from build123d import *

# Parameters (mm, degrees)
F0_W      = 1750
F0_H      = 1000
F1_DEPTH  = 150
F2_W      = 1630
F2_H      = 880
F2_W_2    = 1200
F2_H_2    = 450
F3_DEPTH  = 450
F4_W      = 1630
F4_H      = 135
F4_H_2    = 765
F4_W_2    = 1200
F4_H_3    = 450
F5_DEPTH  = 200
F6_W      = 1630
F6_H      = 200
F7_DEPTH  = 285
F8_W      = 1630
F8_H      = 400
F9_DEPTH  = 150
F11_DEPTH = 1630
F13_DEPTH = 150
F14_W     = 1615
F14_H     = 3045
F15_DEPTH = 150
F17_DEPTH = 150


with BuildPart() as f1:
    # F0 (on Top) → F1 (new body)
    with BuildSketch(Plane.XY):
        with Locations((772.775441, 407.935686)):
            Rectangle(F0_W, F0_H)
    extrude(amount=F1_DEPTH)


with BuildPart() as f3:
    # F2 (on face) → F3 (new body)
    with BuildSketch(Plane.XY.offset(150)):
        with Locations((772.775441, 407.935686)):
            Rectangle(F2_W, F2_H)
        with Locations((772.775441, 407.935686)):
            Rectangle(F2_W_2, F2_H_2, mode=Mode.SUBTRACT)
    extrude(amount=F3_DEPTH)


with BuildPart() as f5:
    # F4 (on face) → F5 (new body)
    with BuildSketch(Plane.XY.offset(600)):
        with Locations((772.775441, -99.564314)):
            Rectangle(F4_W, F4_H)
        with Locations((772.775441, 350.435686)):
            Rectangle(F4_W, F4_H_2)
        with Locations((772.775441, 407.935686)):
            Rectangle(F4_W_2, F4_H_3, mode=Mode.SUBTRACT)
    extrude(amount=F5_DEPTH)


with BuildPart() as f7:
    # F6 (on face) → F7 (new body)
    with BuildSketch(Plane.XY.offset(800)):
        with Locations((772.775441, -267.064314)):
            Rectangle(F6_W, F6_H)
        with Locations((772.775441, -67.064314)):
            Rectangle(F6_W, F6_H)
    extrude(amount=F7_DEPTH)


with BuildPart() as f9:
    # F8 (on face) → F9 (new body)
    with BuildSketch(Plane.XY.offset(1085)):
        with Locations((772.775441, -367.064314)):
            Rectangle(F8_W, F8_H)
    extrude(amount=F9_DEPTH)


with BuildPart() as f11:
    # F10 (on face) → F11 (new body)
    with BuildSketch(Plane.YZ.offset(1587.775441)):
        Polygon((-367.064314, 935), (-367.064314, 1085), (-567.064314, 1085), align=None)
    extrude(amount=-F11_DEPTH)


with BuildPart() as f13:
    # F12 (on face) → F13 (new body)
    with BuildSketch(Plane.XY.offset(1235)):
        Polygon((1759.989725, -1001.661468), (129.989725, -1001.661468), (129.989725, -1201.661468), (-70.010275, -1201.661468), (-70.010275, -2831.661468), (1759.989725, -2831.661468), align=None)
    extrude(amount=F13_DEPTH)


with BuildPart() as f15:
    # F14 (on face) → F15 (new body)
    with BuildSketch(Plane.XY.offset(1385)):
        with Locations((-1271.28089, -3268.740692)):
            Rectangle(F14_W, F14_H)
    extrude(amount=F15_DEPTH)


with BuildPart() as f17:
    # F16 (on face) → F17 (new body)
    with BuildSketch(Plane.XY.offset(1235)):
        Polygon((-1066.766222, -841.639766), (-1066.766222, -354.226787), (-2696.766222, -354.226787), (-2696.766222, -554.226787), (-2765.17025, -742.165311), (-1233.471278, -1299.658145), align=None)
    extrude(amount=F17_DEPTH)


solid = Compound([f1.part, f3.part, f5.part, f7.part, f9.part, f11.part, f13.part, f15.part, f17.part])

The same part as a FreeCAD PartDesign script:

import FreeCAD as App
import Part
import Sketcher
Q = App.Units.Quantity

doc = App.newDocument("Part")
body = doc.addObject("PartDesign::Body", "Body")

# Sketch on XY plane
sketch1 = body.newObject("Sketcher::SketchObject", "Sketch")
sketch1.AttachmentSupport = (doc.getObject("XY_Plane"), [""])
sketch1.MapMode = "FlatFace"
sketch1.addGeometry(Part.LineSegment(App.Vector(-102, 908, 0), App.Vector(-102, -92, 0)), False)
sketch1.addGeometry(Part.LineSegment(App.Vector(-102, -92, 0), App.Vector(1648, -92, 0)), False)
sketch1.addGeometry(Part.LineSegment(App.Vector(1648, -92, 0), App.Vector(1648, 908, 0)), False)
sketch1.addGeometry(Part.LineSegment(App.Vector(1648, 908, 0), App.Vector(-102, 908, 0)), False)
sketch1.addConstraint(Sketcher.Constraint("Coincident", 0, 2, 1, 1))
sketch1.addConstraint(Sketcher.Constraint("Coincident", 1, 2, 2, 1))
sketch1.addConstraint(Sketcher.Constraint("Coincident", 2, 2, 3, 1))
sketch1.addConstraint(Sketcher.Constraint("Coincident", 3, 2, 0, 1))
sketch1.addConstraint(Sketcher.Constraint("Vertical", 0))
sketch1.addConstraint(Sketcher.Constraint("Horizontal", 1))
sketch1.addConstraint(Sketcher.Constraint("Vertical", 2))
sketch1.addConstraint(Sketcher.Constraint("Horizontal", 3))
sketch1.addConstraint(Sketcher.Constraint("DistanceX", 1, 1, 1, 2, 1750.0))
sketch1.addConstraint(Sketcher.Constraint("DistanceY", 0, 2, 0, 1, 1000.0))
sketch1.addConstraint(Sketcher.Constraint("DistanceX", 0, 2, -1, 1, 102.224559))
sketch1.addConstraint(Sketcher.Constraint("DistanceY", 0, 2, -1, 1, 92.064314))
pad1 = body.newObject("PartDesign::Pad", "Pad")
pad1.Profile = sketch1
pad1.Length = 150
body2 = doc.addObject("PartDesign::Body", "Body001")

# Sketch on XY plane
sketch2 = body2.newObject("Sketcher::SketchObject", "Sketch001")
sketch2.AttachmentSupport = (doc.getObject("XY_Plane001"), [""])
sketch2.MapMode = "FlatFace"
sketch2.AttachmentOffset = App.Placement(App.Vector(0, 0, 150), App.Rotation())
sketch2.addGeometry(Part.LineSegment(App.Vector(-42, 848, 0), App.Vector(-42, -32, 0)), False)
sketch2.addGeometry(Part.LineSegment(App.Vector(-42, -32, 0), App.Vector(1588, -32, 0)), False)
sketch2.addGeometry(Part.LineSegment(App.Vector(1588, -32, 0), App.Vector(1588, 848, 0)), False)
sketch2.addGeometry(Part.LineSegment(App.Vector(1588, 848, 0), App.Vector(-42, 848, 0)), False)
sketch2.addGeometry(Part.LineSegment(App.Vector(1373, 183, 0), App.Vector(173, 183, 0)), False)
sketch2.addGeometry(Part.LineSegment(App.Vector(173, 183, 0), App.Vector(173, 633, 0)), False)
sketch2.addGeometry(Part.LineSegment(App.Vector(173, 633, 0), App.Vector(1373, 633, 0)), False)
sketch2.addGeometry(Part.LineSegment(App.Vector(1373, 633, 0), App.Vector(1373, 183, 0)), False)
sketch2.addConstraint(Sketcher.Constraint("Coincident", 0, 2, 1, 1))
sketch2.addConstraint(Sketcher.Constraint("Coincident", 1, 2, 2, 1))
sketch2.addConstraint(Sketcher.Constraint("Coincident", 2, 2, 3, 1))
sketch2.addConstraint(Sketcher.Constraint("Coincident", 3, 2, 0, 1))
sketch2.addConstraint(Sketcher.Constraint("Coincident", 4, 2, 5, 1))
sketch2.addConstraint(Sketcher.Constraint("Coincident", 5, 2, 6, 1))
sketch2.addConstraint(Sketcher.Constraint("Coincident", 6, 2, 7, 1))
sketch2.addConstraint(Sketcher.Constraint("Coincident", 7, 2, 4, 1))
sketch2.addConstraint(Sketcher.Constraint("Vertical", 0))
sketch2.addConstraint(Sketcher.Constraint("Horizontal", 1))
sketch2.addConstraint(Sketcher.Constraint("Vertical", 2))
sketch2.addConstraint(Sketcher.Constraint("Horizontal", 3))
sketch2.addConstraint(Sketcher.Constraint("Horizontal", 4))
sketch2.addConstraint(Sketcher.Constraint("Vertical", 5))
sketch2.addConstraint(Sketcher.Constraint("Horizontal", 6))
sketch2.addConstraint(Sketcher.Constraint("Vertical", 7))
sketch2.addConstraint(Sketcher.Constraint("DistanceX", 1, 1, 1, 2, 1630.0))
sketch2.addConstraint(Sketcher.Constraint("DistanceX", 4, 2, 4, 1, 1200.0))
sketch2.addConstraint(Sketcher.Constraint("DistanceY", 0, 2, 0, 1, 880.0))
sketch2.addConstraint(Sketcher.Constraint("DistanceY", 5, 1, 5, 2, 450.0))
sketch2.addConstraint(Sketcher.Constraint("DistanceX", 0, 2, 4, 2, 215.0))
sketch2.addConstraint(Sketcher.Constraint("DistanceY", 0, 2, 4, 2, 215.0))
sketch2.addConstraint(Sketcher.Constraint("DistanceX", 0, 2, -1, 1, 42.224559))
sketch2.addConstraint(Sketcher.Constraint("DistanceY", 0, 2, -1, 1, 32.064314))
pad2 = body2.newObject("PartDesign::Pad", "Pad001")
pad2.Profile = sketch2
pad2.Length = 450
body3 = doc.addObject("PartDesign::Body", "Body002")

# Sketch on XY plane
sketch3 = body3.newObject("Sketcher::SketchObject", "Sketch002")
sketch3.AttachmentSupport = (doc.getObject("XY_Plane002"), [""])
sketch3.MapMode = "FlatFace"
sketch3.AttachmentOffset = App.Placement(App.Vector(0, 0, 600), App.Rotation())
sketch3.addGeometry(Part.LineSegment(App.Vector(-42, -167, 0), App.Vector(1588, -167, 0)), False)
sketch3.addGeometry(Part.LineSegment(App.Vector(1588, -167, 0), App.Vector(1588, 733, 0)), False)
sketch3.addGeometry(Part.LineSegment(App.Vector(1588, 733, 0), App.Vector(-42, 733, 0)), False)
sketch3.addGeometry(Part.LineSegment(App.Vector(-42, 733, 0), App.Vector(-42, -167, 0)), False)
sketch3.addGeometry(Part.LineSegment(App.Vector(1373, 183, 0), App.Vector(173, 183, 0)), False)
sketch3.addGeometry(Part.LineSegment(App.Vector(173, 183, 0), App.Vector(173, 633, 0)), False)
sketch3.addGeometry(Part.LineSegment(App.Vector(173, 633, 0), App.Vector(1373, 633, 0)), False)
sketch3.addGeometry(Part.LineSegment(App.Vector(1373, 633, 0), App.Vector(1373, 183, 0)), False)
sketch3.addConstraint(Sketcher.Constraint("Coincident", 0, 2, 1, 1))
sketch3.addConstraint(Sketcher.Constraint("Coincident", 1, 2, 2, 1))
sketch3.addConstraint(Sketcher.Constraint("Coincident", 2, 2, 3, 1))
sketch3.addConstraint(Sketcher.Constraint("Coincident", 3, 2, 0, 1))
sketch3.addConstraint(Sketcher.Constraint("Coincident", 4, 2, 5, 1))
sketch3.addConstraint(Sketcher.Constraint("Coincident", 5, 2, 6, 1))
sketch3.addConstraint(Sketcher.Constraint("Coincident", 6, 2, 7, 1))
sketch3.addConstraint(Sketcher.Constraint("Coincident", 7, 2, 4, 1))
sketch3.addConstraint(Sketcher.Constraint("Horizontal", 0))
sketch3.addConstraint(Sketcher.Constraint("Vertical", 1))
sketch3.addConstraint(Sketcher.Constraint("Horizontal", 2))
sketch3.addConstraint(Sketcher.Constraint("Vertical", 3))
sketch3.addConstraint(Sketcher.Constraint("Horizontal", 4))
sketch3.addConstraint(Sketcher.Constraint("Vertical", 5))
sketch3.addConstraint(Sketcher.Constraint("Horizontal", 6))
sketch3.addConstraint(Sketcher.Constraint("Vertical", 7))
sketch3.addConstraint(Sketcher.Constraint("DistanceX", 0, 1, 0, 2, 1630.0))
sketch3.addConstraint(Sketcher.Constraint("DistanceX", 4, 2, 4, 1, 1200.0))
sketch3.addConstraint(Sketcher.Constraint("DistanceY", 1, 1, 1, 2, 900.0))
sketch3.addConstraint(Sketcher.Constraint("DistanceY", 5, 1, 5, 2, 450.0))
sketch3.addConstraint(Sketcher.Constraint("DistanceX", 3, 2, 4, 2, 215.0))
sketch3.addConstraint(Sketcher.Constraint("DistanceY", 3, 2, 4, 2, 350.0))
sketch3.addConstraint(Sketcher.Constraint("DistanceX", -1, 1, 0, 2, 1587.775441))
sketch3.addConstraint(Sketcher.Constraint("DistanceY", 0, 2, -1, 1, 167.064314))
pad3 = body3.newObject("PartDesign::Pad", "Pad002")
pad3.Profile = sketch3
pad3.Length = 200
body4 = doc.addObject("PartDesign::Body", "Body003")

# Sketch on XY plane
sketch4 = body4.newObject("Sketcher::SketchObject", "Sketch003")
sketch4.AttachmentSupport = (doc.getObject("XY_Plane003"), [""])
sketch4.MapMode = "FlatFace"
sketch4.AttachmentOffset = App.Placement(App.Vector(0, 0, 800), App.Rotation())
sketch4.addGeometry(Part.LineSegment(App.Vector(-42, -367, 0), App.Vector(1588, -367, 0)), False)
sketch4.addGeometry(Part.LineSegment(App.Vector(1588, -367, 0), App.Vector(1588, 33, 0)), False)
sketch4.addGeometry(Part.LineSegment(App.Vector(1588, 33, 0), App.Vector(-42, 33, 0)), False)
sketch4.addGeometry(Part.LineSegment(App.Vector(-42, 33, 0), App.Vector(-42, -367, 0)), False)
sketch4.addConstraint(Sketcher.Constraint("Coincident", 0, 2, 1, 1))
sketch4.addConstraint(Sketcher.Constraint("Coincident", 1, 2, 2, 1))
sketch4.addConstraint(Sketcher.Constraint("Coincident", 2, 2, 3, 1))
sketch4.addConstraint(Sketcher.Constraint("Coincident", 3, 2, 0, 1))
sketch4.addConstraint(Sketcher.Constraint("Horizontal", 0))
sketch4.addConstraint(Sketcher.Constraint("Vertical", 1))
sketch4.addConstraint(Sketcher.Constraint("Horizontal", 2))
sketch4.addConstraint(Sketcher.Constraint("Vertical", 3))
sketch4.addConstraint(Sketcher.Constraint("DistanceX", 0, 1, 0, 2, 1630.0))
sketch4.addConstraint(Sketcher.Constraint("DistanceY", 1, 1, 1, 2, 400.0))
sketch4.addConstraint(Sketcher.Constraint("DistanceX", -1, 1, 0, 2, 1587.775441))
sketch4.addConstraint(Sketcher.Constraint("DistanceY", 0, 2, -1, 1, 367.064314))
pad4 = body4.newObject("PartDesign::Pad", "Pad003")
pad4.Profile = sketch4
pad4.Length = 285
body5 = doc.addObject("PartDesign::Body", "Body004")

# Sketch on XY plane
sketch5 = body5.newObject("Sketcher::SketchObject", "Sketch004")
sketch5.AttachmentSupport = (doc.getObject("XY_Plane004"), [""])
sketch5.MapMode = "FlatFace"
sketch5.AttachmentOffset = App.Placement(App.Vector(0, 0, 1085), App.Rotation())
sketch5.addGeometry(Part.LineSegment(App.Vector(-42, -167, 0), App.Vector(-42, -567, 0)), False)
sketch5.addGeometry(Part.LineSegment(App.Vector(-42, -567, 0), App.Vector(1588, -567, 0)), False)
sketch5.addGeometry(Part.LineSegment(App.Vector(1588, -567, 0), App.Vector(1588, -167, 0)), False)
sketch5.addGeometry(Part.LineSegment(App.Vector(1588, -167, 0), App.Vector(-42, -167, 0)), False)
sketch5.addConstraint(Sketcher.Constraint("Coincident", 0, 2, 1, 1))
sketch5.addConstraint(Sketcher.Constraint("Coincident", 1, 2, 2, 1))
sketch5.addConstraint(Sketcher.Constraint("Coincident", 2, 2, 3, 1))
sketch5.addConstraint(Sketcher.Constraint("Coincident", 3, 2, 0, 1))
sketch5.addConstraint(Sketcher.Constraint("Vertical", 0))
sketch5.addConstraint(Sketcher.Constraint("Horizontal", 1))
sketch5.addConstraint(Sketcher.Constraint("Vertical", 2))
sketch5.addConstraint(Sketcher.Constraint("Horizontal", 3))
sketch5.addConstraint(Sketcher.Constraint("DistanceX", 1, 1, 1, 2, 1630.0))
sketch5.addConstraint(Sketcher.Constraint("DistanceY", 0, 2, 0, 1, 400.0))
sketch5.addConstraint(Sketcher.Constraint("DistanceX", 0, 2, -1, 1, 42.224559))
sketch5.addConstraint(Sketcher.Constraint("DistanceY", 0, 2, -1, 1, 567.064314))
pad5 = body5.newObject("PartDesign::Pad", "Pad004")
pad5.Profile = sketch5
pad5.Length = 150
body6 = doc.addObject("PartDesign::Body", "Body005")

# Sketch on YZ plane
sketch6 = body6.newObject("Sketcher::SketchObject", "Sketch005")
sketch6.AttachmentSupport = (doc.getObject("YZ_Plane005"), [""])
sketch6.MapMode = "FlatFace"
sketch6.AttachmentOffset = App.Placement(App.Vector(0, 0, 1587.775441), App.Rotation())
sketch6.addGeometry(Part.LineSegment(App.Vector(-367, 935, 0), App.Vector(-367, 1085, 0)), False)
sketch6.addGeometry(Part.LineSegment(App.Vector(-367, 1085, 0), App.Vector(-567, 1085, 0)), False)
sketch6.addGeometry(Part.LineSegment(App.Vector(-567, 1085, 0), App.Vector(-367, 935, 0)), False)
sketch6.addConstraint(Sketcher.Constraint("Coincident", 0, 2, 1, 1))
sketch6.addConstraint(Sketcher.Constraint("Coincident", 1, 2, 2, 1))
sketch6.addConstraint(Sketcher.Constraint("Coincident", 2, 2, 0, 1))
sketch6.addConstraint(Sketcher.Constraint("Vertical", 0))
sketch6.addConstraint(Sketcher.Constraint("Horizontal", 1))
sketch6.addConstraint(Sketcher.Constraint("DistanceX", 1, 2, 1, 1, 200.0))
sketch6.addConstraint(Sketcher.Constraint("DistanceY", 0, 1, 0, 2, 150.0))
sketch6.addConstraint(Sketcher.Constraint("DistanceY", -1, 1, 0, 2, 1085.0))
sketch6.addConstraint(Sketcher.Constraint("DistanceX", 0, 2, -1, 1, 367.064314))
pad6 = body6.newObject("PartDesign::Pad", "Pad005")
pad6.Profile = sketch6
pad6.Length = 1630
pad6.Reversed = True
body7 = doc.addObject("PartDesign::Body", "Body006")

# Sketch on XY plane
sketch7 = body7.newObject("Sketcher::SketchObject", "Sketch006")
sketch7.AttachmentSupport = (doc.getObject("XY_Plane006"), [""])
sketch7.MapMode = "FlatFace"
sketch7.AttachmentOffset = App.Placement(App.Vector(0, 0, 1235), App.Rotation())
sketch7.addGeometry(Part.LineSegment(App.Vector(1760, -1002, 0), App.Vector(130, -1002, 0)), False)
sketch7.addGeometry(Part.LineSegment(App.Vector(130, -1002, 0), App.Vector(130, -1202, 0)), False)
sketch7.addGeometry(Part.LineSegment(App.Vector(130, -1202, 0), App.Vector(-70, -1202, 0)), False)
sketch7.addGeometry(Part.LineSegment(App.Vector(-70, -1202, 0), App.Vector(-70, -2832, 0)), False)
sketch7.addGeometry(Part.LineSegment(App.Vector(-70, -2832, 0), App.Vector(1760, -2832, 0)), False)
sketch7.addGeometry(Part.LineSegment(App.Vector(1760, -2832, 0), App.Vector(1760, -1002, 0)), False)
sketch7.addConstraint(Sketcher.Constraint("Coincident", 0, 2, 1, 1))
sketch7.addConstraint(Sketcher.Constraint("Coincident", 1, 2, 2, 1))
sketch7.addConstraint(Sketcher.Constraint("Coincident", 2, 2, 3, 1))
sketch7.addConstraint(Sketcher.Constraint("Coincident", 3, 2, 4, 1))
sketch7.addConstraint(Sketcher.Constraint("Coincident", 4, 2, 5, 1))
sketch7.addConstraint(Sketcher.Constraint("Coincident", 5, 2, 0, 1))
sketch7.addConstraint(Sketcher.Constraint("Horizontal", 0))
sketch7.addConstraint(Sketcher.Constraint("Vertical", 1))
sketch7.addConstraint(Sketcher.Constraint("Horizontal", 2))
sketch7.addConstraint(Sketcher.Constraint("Vertical", 3))
sketch7.addConstraint(Sketcher.Constraint("Horizontal", 4))
sketch7.addConstraint(Sketcher.Constraint("Vertical", 5))
sketch7.addConstraint(Sketcher.Constraint("Equal", 2, 1))
sketch7.addConstraint(Sketcher.Constraint("Equal", 0, 3))
sketch7.addConstraint(Sketcher.Constraint("DistanceX", 0, 2, 0, 1, 1630.0))
sketch7.addConstraint(Sketcher.Constraint("DistanceX", 2, 2, 2, 1, 200.0))
sketch7.addConstraint(Sketcher.Constraint("DistanceY", 0, 2, -1, 1, 1001.661468))
sketch7.addConstraint(Sketcher.Constraint("DistanceX", -1, 1, 0, 2, 129.989725))
pad7 = body7.newObject("PartDesign::Pad", "Pad006")
pad7.Profile = sketch7
pad7.Length = 150
body8 = doc.addObject("PartDesign::Body", "Body007")

# Sketch on XY plane
sketch8 = body8.newObject("Sketcher::SketchObject", "Sketch007")
sketch8.AttachmentSupport = (doc.getObject("XY_Plane007"), [""])
sketch8.MapMode = "FlatFace"
sketch8.AttachmentOffset = App.Placement(App.Vector(0, 0, 1385), App.Rotation())
sketch8.addGeometry(Part.LineSegment(App.Vector(-2079, -1746, 0), App.Vector(-2079, -4791, 0)), False)
sketch8.addGeometry(Part.LineSegment(App.Vector(-2079, -4791, 0), App.Vector(-464, -4791, 0)), False)
sketch8.addGeometry(Part.LineSegment(App.Vector(-464, -4791, 0), App.Vector(-464, -1746, 0)), False)
sketch8.addGeometry(Part.LineSegment(App.Vector(-464, -1746, 0), App.Vector(-2079, -1746, 0)), False)
sketch8.addConstraint(Sketcher.Constraint("Coincident", 0, 2, 1, 1))
sketch8.addConstraint(Sketcher.Constraint("Coincident", 1, 2, 2, 1))
sketch8.addConstraint(Sketcher.Constraint("Coincident", 2, 2, 3, 1))
sketch8.addConstraint(Sketcher.Constraint("Coincident", 3, 2, 0, 1))
sketch8.addConstraint(Sketcher.Constraint("Vertical", 0))
sketch8.addConstraint(Sketcher.Constraint("Horizontal", 1))
sketch8.addConstraint(Sketcher.Constraint("Vertical", 2))
sketch8.addConstraint(Sketcher.Constraint("Horizontal", 3))
sketch8.addConstraint(Sketcher.Constraint("DistanceX", 1, 1, 1, 2, 1615.0))
sketch8.addConstraint(Sketcher.Constraint("DistanceY", 0, 2, 0, 1, 3045.0))
sketch8.addConstraint(Sketcher.Constraint("DistanceX", 0, 2, -1, 1, 2078.78089))
sketch8.addConstraint(Sketcher.Constraint("DistanceY", 2, 2, -1, 1, 1746.240692))
pad8 = body8.newObject("PartDesign::Pad", "Pad007")
pad8.Profile = sketch8
pad8.Length = 150
body9 = doc.addObject("PartDesign::Body", "Body008")

# Sketch on XY plane
sketch9 = body9.newObject("Sketcher::SketchObject", "Sketch008")
sketch9.AttachmentSupport = (doc.getObject("XY_Plane008"), [""])
sketch9.MapMode = "FlatFace"
sketch9.AttachmentOffset = App.Placement(App.Vector(0, 0, 1235), App.Rotation())
sketch9.addGeometry(Part.LineSegment(App.Vector(-1067, -842, 0), App.Vector(-1067, -354, 0)), False)
sketch9.addGeometry(Part.LineSegment(App.Vector(-1067, -354, 0), App.Vector(-2697, -354, 0)), False)
sketch9.addGeometry(Part.LineSegment(App.Vector(-2697, -354, 0), App.Vector(-2697, -554, 0)), False)
sketch9.addGeometry(Part.LineSegment(App.Vector(-2697, -554, 0), App.Vector(-2765, -742, 0)), False)
sketch9.addGeometry(Part.LineSegment(App.Vector(-2765, -742, 0), App.Vector(-1233, -1300, 0)), False)
sketch9.addGeometry(Part.LineSegment(App.Vector(-1233, -1300, 0), App.Vector(-1067, -842, 0)), False)
sketch9.addConstraint(Sketcher.Constraint("Coincident", 0, 2, 1, 1))
sketch9.addConstraint(Sketcher.Constraint("Coincident", 1, 2, 2, 1))
sketch9.addConstraint(Sketcher.Constraint("Coincident", 2, 2, 3, 1))
sketch9.addConstraint(Sketcher.Constraint("Coincident", 3, 2, 4, 1))
sketch9.addConstraint(Sketcher.Constraint("Coincident", 4, 2, 5, 1))
sketch9.addConstraint(Sketcher.Constraint("Coincident", 5, 2, 0, 1))
sketch9.addConstraint(Sketcher.Constraint("Vertical", 0))
sketch9.addConstraint(Sketcher.Constraint("Horizontal", 1))
sketch9.addConstraint(Sketcher.Constraint("Vertical", 2))
sketch9.addConstraint(Sketcher.Constraint("Perpendicular", 3, 4))
sketch9.addConstraint(Sketcher.Constraint("Perpendicular", 4, 5))
sketch9.addConstraint(Sketcher.Constraint("DistanceX", 1, 2, 1, 1, 1630.0))
sketch9.addConstraint(Sketcher.Constraint("DistanceY", 2, 2, 2, 1, 200.0))
sketch9.addConstraint(Sketcher.Constraint("Angle", 3, Q("-110 deg")))
sketch9.addConstraint(Sketcher.Constraint("Distance", 3, 200.0))
sketch9.addConstraint(Sketcher.Constraint("Distance", 4, 1630.0))
sketch9.addConstraint(Sketcher.Constraint("DistanceX", 0, 2, -1, 1, 1066.766222))
sketch9.addConstraint(Sketcher.Constraint("DistanceY", 3, 2, -1, 1, 742.165311))
pad9 = body9.newObject("PartDesign::Pad", "Pad008")
pad9.Profile = sketch9
pad9.Length = 150

doc.recompute()
